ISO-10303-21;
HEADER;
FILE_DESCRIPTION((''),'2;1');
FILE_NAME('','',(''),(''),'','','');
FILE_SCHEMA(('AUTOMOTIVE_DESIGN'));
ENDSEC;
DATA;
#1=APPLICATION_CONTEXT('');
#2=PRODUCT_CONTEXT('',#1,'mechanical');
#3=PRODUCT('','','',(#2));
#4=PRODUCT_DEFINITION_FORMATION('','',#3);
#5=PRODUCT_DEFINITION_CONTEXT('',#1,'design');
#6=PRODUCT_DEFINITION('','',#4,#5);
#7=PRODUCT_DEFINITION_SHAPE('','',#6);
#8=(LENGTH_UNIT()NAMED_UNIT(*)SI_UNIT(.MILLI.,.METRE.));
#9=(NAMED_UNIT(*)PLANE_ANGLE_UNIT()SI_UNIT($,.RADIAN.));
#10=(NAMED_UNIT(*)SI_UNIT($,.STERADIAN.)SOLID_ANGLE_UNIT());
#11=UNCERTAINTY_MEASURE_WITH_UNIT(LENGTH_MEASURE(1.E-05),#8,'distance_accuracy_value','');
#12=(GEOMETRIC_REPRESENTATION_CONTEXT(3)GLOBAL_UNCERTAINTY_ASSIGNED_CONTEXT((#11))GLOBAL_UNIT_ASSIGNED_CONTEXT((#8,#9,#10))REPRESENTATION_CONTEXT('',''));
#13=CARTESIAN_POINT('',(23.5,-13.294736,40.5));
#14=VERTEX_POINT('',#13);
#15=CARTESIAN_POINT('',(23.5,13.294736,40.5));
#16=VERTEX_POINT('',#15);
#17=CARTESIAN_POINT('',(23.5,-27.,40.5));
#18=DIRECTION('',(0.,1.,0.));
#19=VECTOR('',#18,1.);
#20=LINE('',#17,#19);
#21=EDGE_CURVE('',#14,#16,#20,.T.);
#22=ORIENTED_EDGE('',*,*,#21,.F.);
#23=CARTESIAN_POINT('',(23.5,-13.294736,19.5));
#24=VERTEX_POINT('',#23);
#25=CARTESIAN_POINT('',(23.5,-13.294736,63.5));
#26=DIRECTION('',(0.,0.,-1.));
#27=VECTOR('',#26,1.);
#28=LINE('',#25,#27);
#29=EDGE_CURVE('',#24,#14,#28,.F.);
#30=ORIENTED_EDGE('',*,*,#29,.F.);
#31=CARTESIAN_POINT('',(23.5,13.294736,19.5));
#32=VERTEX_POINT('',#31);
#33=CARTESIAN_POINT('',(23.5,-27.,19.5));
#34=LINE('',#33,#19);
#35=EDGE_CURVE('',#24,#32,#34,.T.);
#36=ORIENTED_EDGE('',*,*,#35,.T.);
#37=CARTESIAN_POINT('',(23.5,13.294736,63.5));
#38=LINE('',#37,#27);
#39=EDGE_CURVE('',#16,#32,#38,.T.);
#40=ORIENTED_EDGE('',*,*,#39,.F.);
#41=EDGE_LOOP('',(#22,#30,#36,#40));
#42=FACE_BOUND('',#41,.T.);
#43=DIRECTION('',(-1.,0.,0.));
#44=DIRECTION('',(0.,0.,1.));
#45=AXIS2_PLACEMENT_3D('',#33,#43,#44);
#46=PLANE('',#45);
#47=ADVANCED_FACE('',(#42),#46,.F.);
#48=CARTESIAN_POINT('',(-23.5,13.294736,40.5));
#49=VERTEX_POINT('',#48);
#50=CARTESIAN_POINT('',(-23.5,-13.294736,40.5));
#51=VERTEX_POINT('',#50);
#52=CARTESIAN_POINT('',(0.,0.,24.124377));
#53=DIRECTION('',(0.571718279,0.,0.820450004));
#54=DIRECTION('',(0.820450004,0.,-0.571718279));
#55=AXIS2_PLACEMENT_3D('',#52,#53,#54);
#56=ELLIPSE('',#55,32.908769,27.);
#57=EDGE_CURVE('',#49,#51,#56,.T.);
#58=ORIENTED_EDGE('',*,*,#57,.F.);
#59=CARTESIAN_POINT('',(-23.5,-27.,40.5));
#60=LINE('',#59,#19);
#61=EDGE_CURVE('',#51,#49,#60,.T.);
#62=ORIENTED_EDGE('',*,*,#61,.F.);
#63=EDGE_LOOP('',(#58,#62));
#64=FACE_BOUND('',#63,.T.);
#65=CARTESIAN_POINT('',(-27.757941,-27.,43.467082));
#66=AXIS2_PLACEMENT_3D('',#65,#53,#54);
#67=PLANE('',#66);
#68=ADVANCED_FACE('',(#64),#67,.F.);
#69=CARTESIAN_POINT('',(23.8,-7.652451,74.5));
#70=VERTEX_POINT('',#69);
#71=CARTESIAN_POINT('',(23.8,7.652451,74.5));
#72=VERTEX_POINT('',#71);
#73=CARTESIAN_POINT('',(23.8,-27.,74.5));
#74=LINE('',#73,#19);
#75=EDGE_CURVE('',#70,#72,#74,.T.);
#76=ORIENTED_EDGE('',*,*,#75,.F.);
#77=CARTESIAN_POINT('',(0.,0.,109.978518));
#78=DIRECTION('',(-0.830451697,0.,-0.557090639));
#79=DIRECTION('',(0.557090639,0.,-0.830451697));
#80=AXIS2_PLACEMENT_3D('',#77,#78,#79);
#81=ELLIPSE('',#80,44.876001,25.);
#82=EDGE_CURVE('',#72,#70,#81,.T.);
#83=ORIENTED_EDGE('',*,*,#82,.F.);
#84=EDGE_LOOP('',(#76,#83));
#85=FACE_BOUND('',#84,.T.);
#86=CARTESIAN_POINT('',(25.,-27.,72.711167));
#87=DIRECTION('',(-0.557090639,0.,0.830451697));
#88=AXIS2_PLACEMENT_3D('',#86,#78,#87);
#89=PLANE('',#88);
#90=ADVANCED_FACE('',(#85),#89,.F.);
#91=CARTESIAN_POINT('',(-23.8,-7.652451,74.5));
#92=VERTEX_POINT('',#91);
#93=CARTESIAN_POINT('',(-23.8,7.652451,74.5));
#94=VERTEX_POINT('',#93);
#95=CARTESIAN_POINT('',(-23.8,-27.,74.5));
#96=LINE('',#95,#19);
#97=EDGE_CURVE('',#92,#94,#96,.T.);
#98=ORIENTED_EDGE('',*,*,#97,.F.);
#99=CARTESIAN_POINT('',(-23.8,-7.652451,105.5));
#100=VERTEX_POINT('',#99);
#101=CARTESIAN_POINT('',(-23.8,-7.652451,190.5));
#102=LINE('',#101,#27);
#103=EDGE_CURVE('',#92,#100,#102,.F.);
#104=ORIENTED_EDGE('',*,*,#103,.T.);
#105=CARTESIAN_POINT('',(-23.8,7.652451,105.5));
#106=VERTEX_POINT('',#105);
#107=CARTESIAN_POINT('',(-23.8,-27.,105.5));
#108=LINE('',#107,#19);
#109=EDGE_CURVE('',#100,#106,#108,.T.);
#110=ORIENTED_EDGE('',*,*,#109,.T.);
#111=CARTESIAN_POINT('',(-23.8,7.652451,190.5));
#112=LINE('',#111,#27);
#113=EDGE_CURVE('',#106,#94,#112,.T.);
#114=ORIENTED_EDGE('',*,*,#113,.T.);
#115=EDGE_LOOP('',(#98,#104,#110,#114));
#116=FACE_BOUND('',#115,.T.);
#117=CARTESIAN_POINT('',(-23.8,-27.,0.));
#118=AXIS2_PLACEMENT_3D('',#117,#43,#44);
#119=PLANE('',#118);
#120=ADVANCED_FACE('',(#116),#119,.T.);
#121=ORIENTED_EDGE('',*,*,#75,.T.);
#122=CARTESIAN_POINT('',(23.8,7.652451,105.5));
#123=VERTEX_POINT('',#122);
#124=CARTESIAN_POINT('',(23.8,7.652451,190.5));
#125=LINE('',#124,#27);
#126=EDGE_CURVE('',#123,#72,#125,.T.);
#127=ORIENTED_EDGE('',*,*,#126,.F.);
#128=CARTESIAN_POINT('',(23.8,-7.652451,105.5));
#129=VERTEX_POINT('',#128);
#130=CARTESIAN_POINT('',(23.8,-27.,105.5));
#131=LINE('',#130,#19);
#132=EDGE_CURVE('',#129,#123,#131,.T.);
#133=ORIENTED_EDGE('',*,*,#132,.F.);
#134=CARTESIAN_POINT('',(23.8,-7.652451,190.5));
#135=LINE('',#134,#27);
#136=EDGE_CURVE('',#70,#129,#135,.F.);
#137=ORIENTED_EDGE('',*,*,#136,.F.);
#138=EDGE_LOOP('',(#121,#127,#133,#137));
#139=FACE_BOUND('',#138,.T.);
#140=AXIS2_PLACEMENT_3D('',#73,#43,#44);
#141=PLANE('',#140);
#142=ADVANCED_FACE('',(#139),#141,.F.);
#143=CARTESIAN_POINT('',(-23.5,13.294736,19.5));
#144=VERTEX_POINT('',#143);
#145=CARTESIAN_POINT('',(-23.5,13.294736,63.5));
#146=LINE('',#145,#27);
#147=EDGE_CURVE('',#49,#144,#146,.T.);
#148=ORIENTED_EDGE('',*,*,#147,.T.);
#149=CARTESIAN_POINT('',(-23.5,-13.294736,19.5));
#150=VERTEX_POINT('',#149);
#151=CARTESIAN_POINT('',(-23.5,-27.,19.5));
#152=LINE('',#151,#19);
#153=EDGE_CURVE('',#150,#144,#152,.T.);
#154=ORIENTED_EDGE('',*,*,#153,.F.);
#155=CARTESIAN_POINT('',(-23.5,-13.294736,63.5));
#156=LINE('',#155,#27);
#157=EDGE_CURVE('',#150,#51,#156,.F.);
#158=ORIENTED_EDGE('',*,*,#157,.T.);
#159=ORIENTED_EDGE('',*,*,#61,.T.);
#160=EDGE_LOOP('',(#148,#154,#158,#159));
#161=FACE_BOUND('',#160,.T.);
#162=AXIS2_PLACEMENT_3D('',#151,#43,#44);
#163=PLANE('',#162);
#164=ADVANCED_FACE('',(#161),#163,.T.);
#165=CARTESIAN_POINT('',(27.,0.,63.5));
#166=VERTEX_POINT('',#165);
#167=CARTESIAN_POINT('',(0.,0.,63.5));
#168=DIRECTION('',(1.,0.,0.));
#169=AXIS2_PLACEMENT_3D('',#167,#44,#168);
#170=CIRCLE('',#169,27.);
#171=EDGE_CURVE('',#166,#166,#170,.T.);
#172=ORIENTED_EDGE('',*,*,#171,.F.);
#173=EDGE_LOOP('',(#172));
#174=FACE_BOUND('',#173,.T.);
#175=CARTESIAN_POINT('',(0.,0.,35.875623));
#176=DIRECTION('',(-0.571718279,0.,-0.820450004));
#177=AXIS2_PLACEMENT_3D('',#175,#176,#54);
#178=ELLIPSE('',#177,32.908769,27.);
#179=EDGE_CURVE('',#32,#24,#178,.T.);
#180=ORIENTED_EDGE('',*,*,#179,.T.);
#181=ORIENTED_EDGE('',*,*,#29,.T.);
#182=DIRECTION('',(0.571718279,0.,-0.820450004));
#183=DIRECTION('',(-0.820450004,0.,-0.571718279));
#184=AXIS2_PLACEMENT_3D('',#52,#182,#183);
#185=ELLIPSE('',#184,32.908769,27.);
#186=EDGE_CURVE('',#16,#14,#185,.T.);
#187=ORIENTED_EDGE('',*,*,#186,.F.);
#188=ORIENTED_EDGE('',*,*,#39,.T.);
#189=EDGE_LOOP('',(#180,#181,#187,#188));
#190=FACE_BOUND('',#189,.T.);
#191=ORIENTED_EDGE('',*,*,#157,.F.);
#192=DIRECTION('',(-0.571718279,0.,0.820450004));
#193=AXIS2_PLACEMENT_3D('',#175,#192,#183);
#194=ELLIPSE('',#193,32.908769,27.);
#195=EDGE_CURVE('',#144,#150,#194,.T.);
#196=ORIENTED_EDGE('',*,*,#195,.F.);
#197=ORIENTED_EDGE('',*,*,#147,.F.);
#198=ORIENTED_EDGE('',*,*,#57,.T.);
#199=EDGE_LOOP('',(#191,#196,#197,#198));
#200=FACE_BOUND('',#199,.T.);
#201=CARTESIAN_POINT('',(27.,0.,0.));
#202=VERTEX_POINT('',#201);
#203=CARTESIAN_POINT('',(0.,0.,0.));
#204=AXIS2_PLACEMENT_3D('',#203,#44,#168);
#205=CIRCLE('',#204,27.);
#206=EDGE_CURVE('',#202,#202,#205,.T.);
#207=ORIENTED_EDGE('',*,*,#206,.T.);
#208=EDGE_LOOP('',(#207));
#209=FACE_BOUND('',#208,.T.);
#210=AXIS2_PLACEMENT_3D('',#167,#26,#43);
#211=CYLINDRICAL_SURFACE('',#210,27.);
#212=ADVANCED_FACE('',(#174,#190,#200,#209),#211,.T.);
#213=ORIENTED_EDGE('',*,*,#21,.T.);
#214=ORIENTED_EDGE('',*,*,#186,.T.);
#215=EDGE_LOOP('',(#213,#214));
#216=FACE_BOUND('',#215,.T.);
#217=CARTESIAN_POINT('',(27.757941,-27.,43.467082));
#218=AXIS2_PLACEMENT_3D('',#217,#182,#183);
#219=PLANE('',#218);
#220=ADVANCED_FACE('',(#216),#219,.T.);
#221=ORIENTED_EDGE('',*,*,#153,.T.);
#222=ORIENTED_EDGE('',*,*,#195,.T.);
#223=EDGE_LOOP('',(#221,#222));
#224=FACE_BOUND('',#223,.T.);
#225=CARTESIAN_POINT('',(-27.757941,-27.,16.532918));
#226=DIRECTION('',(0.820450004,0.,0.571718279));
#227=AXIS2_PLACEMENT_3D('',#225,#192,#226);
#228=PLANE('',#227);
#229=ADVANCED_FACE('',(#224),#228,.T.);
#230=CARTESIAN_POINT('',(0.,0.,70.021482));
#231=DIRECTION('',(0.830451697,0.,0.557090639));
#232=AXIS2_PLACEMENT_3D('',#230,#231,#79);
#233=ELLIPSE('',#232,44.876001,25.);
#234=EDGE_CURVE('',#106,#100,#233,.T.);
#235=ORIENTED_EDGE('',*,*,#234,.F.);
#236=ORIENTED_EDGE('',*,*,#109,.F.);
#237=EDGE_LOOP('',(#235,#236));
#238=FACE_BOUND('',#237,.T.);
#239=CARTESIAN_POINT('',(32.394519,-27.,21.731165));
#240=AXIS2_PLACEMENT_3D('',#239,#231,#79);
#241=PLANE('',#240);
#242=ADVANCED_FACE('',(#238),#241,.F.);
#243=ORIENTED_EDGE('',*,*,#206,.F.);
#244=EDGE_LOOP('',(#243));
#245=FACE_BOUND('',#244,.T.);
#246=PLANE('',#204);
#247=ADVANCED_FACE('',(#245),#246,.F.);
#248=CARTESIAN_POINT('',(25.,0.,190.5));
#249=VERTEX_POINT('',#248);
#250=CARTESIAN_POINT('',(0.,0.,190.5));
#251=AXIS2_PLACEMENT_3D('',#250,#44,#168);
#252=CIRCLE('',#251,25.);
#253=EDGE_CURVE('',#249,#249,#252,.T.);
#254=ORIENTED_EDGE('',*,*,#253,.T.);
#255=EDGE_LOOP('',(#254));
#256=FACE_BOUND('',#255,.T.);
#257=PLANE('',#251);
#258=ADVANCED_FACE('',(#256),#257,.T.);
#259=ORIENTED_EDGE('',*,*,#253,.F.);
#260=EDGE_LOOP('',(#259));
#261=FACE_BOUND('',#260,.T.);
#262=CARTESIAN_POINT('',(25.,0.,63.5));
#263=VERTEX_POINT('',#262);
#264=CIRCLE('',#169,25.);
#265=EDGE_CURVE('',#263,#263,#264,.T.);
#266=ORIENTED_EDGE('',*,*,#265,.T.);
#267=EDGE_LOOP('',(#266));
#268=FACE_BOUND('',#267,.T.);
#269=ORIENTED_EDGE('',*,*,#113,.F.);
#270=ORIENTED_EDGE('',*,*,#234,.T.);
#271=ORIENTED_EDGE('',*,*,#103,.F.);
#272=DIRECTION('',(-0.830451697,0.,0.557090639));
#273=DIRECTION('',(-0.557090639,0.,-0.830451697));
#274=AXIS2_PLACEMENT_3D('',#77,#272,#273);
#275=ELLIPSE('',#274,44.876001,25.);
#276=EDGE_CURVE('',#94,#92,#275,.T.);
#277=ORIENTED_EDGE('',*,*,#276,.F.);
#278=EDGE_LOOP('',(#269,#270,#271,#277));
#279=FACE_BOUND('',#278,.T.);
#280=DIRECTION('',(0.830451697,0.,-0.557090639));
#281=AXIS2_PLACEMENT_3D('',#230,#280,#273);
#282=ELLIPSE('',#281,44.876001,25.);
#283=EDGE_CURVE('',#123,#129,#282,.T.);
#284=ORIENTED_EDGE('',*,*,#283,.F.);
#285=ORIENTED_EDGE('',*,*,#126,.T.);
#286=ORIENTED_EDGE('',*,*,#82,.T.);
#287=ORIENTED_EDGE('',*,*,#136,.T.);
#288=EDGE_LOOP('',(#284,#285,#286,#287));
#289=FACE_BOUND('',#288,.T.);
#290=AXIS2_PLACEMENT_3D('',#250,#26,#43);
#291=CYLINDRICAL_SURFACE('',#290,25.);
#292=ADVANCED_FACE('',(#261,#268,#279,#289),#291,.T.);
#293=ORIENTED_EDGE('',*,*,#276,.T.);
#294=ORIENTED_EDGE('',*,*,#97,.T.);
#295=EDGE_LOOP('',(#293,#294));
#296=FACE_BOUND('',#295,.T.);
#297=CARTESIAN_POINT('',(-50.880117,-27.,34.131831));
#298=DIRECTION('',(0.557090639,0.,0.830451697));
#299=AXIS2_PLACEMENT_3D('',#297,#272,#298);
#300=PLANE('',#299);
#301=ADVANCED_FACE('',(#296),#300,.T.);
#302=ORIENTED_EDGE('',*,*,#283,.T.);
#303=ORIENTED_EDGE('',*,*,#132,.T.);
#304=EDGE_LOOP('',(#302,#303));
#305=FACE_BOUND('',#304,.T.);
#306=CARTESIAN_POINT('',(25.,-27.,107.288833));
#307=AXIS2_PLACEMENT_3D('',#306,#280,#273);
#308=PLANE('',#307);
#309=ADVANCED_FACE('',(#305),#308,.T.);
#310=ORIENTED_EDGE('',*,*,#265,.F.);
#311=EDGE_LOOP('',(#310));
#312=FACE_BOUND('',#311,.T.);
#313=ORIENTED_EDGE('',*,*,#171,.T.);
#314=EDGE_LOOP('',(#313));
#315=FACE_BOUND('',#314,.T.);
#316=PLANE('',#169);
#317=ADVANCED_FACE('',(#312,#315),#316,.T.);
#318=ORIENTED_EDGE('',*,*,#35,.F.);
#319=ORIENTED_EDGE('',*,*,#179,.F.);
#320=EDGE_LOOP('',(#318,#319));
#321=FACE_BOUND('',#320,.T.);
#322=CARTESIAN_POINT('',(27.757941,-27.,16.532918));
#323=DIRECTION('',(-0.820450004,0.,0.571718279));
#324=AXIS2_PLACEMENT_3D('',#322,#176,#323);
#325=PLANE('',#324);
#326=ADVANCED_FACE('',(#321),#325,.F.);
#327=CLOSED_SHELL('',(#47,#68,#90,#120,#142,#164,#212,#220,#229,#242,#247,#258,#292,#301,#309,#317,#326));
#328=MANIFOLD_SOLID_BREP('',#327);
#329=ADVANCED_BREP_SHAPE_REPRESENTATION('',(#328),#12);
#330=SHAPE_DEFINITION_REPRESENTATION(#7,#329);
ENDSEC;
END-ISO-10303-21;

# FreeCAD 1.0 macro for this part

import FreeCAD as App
import Part
import Sketcher
Q = App.Units.Quantity


def add_polygon(sketch, points):
    """Adds a closed chain of lines whose ends are joined by coincident constraints."""
    first, n = sketch.GeometryCount, len(points)
    for a, b in zip(points, points[1:] + points[:1]):
        sketch.addGeometry(Part.LineSegment(App.Vector(*a, 0), App.Vector(*b, 0)), False)
    for i in range(n):
        sketch.addConstraint(Sketcher.Constraint("Coincident", first + i, 2, first + (i + 1) % n, 1))

doc = App.newDocument("Part")
body = doc.addObject("PartDesign::Body", "Body")

# Sketch on XY plane
sketch1 = body.newObject("Sketcher::SketchObject", "Sketch")
sketch1.AttachmentSupport = (doc.getObject("XY_Plane"), [""])
sketch1.MapMode = "FlatFace"
sketch1.addGeometry(Part.Circle(App.Vector(0, 0, 0), App.Vector(0, 0, 1), 27), False)
sketch1.addConstraint([
    Sketcher.Constraint("Coincident", 0, 3, -1, 1),
    Sketcher.Constraint("Diameter", 0, Q("54 mm")),
])
pad1 = body.newObject("PartDesign::Pad", "Pad")
pad1.Profile = sketch1
pad1.Length = 63.5

# Sketch on XY plane
sketch2 = body.newObject("Sketcher::SketchObject", "Sketch001")
sketch2.AttachmentSupport = (doc.getObject("XY_Plane"), [""])
sketch2.MapMode = "FlatFace"
sketch2.AttachmentOffset = App.Placement(App.Vector(0, 0, 63.5), App.Rotation())
sketch2.addGeometry(Part.Circle(App.Vector(0, 0, 0), App.Vector(0, 0, 1), 25), False)
sketch2.addConstraint([
    Sketcher.Constraint("Coincident", 0, 3, -1, 1),
    Sketcher.Constraint("Diameter", 0, Q("50 mm")),
])
pad2 = body.newObject("PartDesign::Pad", "Pad001")
pad2.Profile = sketch2
pad2.Length = 127

# Sketch on XZ plane
sketch3 = body.newObject("Sketcher::SketchObject", "Sketch002")
sketch3.AttachmentSupport = (doc.getObject("XZ_Plane"), [""])
sketch3.MapMode = "FlatFace"
add_polygon(sketch3, [(-23.8, 74.5), (-25, 72.711167), (-25, 107.288833), (-23.8, 105.5)])  # lines 0-3
add_polygon(sketch3, [(-27.757941, 16.532918), (-27.757941, 43.467082), (-23.5, 40.5), (-23.5, 19.5)])  # lines 4-7
add_polygon(sketch3, [(23.8, 74.5), (23.8, 105.5), (25, 107.288833), (25, 72.711167)])  # lines 8-11
add_polygon(sketch3, [(27.757941, 43.467082), (27.757941, 16.532918), (23.5, 19.5), (23.5, 40.5)])  # lines 12-15
sketch3.addConstraint([
    Sketcher.Constraint("Vertical", 1),
    Sketcher.Constraint("Vertical", 3),
    Sketcher.Constraint("Vertical", 4),
    Sketcher.Constraint("Vertical", 6),
    Sketcher.Constraint("Vertical", 8),
    Sketcher.Constraint("Vertical", 10),
    Sketcher.Constraint("Vertical", 12),
    Sketcher.Constraint("Vertical", 14),
    Sketcher.Constraint("Symmetric", 2, 2, 8, 2, -2),
    Sketcher.Constraint("Symmetric", 1, 2, 9, 2, -2),
    Sketcher.Constraint("Symmetric", 7, 2, 12, 2, -2),
    Sketcher.Constraint("Symmetric", 6, 2, 13, 2, -2),
    Sketcher.Constraint("Parallel", 0, 9),
    Sketcher.Constraint("Parallel", 2, 11),
    Sketcher.Constraint("Parallel", 5, 13),
    Sketcher.Constraint("Parallel", 7, 15),
    Sketcher.Constraint("Horizontal", 0, 2, 10, 2),
    Sketcher.Constraint("Horizontal", 5, 2, 14, 2),
    Sketcher.Constraint("DistanceY", 3, 2, 3, 1, Q("31 mm")),
    Sketcher.Constraint("DistanceY", 6, 2, 6, 1, Q("21 mm")),
    Sketcher.Constraint("DistanceX", 0, 2, -1, 1, Q("25 mm")),
    Sketcher.Constraint("DistanceY", 5, 2, 3, 2, Q("34 mm")),
    Sketcher.Constraint("DistanceX", 6, 2, 13, 2, Q("47 mm")),
    Sketcher.Constraint("DistanceX", 2, 2, -1, 1, Q("23.8 mm")),
    Sketcher.Constraint("DistanceY", -1, 1, 2, 2, Q("105.5 mm")),
    Sketcher.Constraint("Distance", 0, Q("2.154048 mm")),
    Sketcher.Constraint("DistanceY", 4, 1, 4, 2, Q("26.934164 mm")),
    Sketcher.Constraint("DistanceX", 4, 2, -1, 1, Q("27.757941 mm")),
])
pocket1 = body.newObject("PartDesign::Pocket", "Pocket")
pocket1.Profile = sketch3
pocket1.Type = "ThroughAll"
pocket1.Midplane = True

doc.recompute()
